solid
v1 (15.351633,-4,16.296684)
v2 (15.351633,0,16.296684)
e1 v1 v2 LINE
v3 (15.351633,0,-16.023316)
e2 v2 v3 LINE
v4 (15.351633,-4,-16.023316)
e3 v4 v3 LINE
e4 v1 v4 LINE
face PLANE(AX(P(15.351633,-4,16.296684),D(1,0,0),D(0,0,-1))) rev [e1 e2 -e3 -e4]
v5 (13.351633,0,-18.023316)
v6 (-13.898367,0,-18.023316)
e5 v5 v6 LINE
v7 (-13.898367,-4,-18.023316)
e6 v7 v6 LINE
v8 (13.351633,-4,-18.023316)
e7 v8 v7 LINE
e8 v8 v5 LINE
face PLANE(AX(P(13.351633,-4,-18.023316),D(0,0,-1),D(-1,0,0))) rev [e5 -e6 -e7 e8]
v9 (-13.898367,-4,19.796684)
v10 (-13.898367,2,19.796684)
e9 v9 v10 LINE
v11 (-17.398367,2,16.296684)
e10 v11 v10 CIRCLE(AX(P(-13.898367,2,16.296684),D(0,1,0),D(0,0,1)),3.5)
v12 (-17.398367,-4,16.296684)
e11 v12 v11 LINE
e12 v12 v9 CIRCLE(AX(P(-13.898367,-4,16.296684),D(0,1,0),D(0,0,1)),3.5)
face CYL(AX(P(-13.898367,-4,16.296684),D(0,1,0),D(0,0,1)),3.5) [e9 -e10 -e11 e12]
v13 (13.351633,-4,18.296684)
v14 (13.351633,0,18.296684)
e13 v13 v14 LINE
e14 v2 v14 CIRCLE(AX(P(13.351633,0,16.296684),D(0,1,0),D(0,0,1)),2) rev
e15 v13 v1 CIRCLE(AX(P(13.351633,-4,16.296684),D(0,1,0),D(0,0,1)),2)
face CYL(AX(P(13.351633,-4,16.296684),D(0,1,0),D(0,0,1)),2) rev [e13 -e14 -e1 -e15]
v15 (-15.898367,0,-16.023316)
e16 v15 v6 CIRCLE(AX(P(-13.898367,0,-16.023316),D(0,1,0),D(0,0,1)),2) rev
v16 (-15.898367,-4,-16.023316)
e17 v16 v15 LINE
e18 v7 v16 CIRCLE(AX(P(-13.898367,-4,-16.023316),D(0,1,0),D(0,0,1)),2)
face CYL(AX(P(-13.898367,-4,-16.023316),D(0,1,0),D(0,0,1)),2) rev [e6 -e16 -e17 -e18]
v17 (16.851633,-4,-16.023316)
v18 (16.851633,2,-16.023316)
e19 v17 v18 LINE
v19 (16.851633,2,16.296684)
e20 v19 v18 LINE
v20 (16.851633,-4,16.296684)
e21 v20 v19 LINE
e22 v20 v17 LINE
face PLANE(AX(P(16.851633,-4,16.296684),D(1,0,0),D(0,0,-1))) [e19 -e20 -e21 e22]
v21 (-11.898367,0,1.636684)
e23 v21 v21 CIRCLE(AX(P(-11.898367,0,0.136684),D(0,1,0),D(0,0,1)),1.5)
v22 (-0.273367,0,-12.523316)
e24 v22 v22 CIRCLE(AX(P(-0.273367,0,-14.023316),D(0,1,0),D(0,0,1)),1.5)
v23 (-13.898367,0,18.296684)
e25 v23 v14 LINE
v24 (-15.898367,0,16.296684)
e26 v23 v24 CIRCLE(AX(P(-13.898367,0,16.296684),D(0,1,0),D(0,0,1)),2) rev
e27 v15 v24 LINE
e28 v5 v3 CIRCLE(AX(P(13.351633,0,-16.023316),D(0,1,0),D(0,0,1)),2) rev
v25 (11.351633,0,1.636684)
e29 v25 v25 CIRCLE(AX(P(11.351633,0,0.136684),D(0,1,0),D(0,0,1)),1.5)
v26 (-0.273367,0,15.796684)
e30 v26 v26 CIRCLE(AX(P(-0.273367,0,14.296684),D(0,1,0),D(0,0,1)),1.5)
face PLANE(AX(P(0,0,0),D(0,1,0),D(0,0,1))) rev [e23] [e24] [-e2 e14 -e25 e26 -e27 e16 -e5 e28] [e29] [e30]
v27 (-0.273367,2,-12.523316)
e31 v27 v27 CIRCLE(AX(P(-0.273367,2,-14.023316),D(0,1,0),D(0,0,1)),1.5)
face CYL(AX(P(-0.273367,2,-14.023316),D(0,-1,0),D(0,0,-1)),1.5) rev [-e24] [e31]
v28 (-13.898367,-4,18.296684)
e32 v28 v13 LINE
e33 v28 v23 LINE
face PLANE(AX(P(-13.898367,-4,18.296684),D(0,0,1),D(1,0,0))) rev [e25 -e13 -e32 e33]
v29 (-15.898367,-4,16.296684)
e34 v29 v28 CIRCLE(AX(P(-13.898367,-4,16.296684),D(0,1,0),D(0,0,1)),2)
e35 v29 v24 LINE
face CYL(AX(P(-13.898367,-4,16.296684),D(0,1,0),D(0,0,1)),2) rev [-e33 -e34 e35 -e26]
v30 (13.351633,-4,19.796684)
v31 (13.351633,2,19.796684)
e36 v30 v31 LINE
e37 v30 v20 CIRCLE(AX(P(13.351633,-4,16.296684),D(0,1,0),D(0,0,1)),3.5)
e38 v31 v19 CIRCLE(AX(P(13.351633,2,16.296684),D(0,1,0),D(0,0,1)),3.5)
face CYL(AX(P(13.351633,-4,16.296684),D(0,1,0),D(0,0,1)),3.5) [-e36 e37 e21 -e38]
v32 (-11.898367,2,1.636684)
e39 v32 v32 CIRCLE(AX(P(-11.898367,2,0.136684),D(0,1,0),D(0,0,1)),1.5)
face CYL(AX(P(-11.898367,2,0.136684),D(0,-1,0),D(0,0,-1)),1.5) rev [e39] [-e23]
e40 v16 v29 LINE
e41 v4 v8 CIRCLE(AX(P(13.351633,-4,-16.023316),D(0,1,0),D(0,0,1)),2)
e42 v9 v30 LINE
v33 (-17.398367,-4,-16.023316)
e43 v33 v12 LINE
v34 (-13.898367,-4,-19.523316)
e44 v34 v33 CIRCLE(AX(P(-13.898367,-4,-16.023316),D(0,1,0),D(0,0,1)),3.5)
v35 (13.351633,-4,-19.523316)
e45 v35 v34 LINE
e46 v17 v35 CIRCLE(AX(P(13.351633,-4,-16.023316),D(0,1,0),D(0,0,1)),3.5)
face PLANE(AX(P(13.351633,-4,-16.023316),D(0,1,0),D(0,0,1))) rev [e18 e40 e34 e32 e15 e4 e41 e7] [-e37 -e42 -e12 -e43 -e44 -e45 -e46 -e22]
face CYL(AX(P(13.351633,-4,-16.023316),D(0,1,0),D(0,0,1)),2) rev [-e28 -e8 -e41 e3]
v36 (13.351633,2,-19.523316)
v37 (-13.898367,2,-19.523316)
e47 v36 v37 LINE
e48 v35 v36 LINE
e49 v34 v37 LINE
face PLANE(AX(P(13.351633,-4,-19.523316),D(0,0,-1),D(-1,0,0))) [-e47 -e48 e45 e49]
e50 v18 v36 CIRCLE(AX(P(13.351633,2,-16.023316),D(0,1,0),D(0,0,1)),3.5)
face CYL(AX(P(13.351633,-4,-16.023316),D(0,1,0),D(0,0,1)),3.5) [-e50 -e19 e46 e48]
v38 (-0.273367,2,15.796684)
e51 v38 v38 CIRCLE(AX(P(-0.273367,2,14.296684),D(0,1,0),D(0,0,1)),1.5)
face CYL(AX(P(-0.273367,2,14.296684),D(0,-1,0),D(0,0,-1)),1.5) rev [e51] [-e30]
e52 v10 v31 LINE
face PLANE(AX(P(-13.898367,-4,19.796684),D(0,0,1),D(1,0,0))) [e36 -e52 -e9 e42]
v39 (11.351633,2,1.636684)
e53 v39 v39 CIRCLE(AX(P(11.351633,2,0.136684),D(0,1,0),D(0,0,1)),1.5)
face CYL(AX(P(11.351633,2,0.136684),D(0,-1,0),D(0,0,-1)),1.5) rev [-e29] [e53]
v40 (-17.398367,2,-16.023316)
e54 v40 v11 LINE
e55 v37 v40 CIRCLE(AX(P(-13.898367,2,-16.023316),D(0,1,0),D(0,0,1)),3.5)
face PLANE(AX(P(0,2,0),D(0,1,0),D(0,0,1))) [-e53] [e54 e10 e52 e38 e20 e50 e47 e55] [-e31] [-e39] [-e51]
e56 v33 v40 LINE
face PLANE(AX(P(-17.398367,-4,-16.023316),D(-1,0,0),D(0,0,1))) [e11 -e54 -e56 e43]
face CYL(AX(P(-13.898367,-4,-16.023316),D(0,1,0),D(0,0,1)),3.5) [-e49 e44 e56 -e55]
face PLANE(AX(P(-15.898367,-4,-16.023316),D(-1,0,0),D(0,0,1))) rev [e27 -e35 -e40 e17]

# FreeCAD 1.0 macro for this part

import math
import FreeCAD as App
import Part
import Sketcher
Q = App.Units.Quantity


def edges_at(feature, points):
    """Names of the edges that pass closest to the given points."""
    edges = feature.Shape.Edges
    near = lambda p: min(range(len(edges)), key=lambda i: edges[i].distToShape(Part.Vertex(*p))[0])
    return sorted({f"Edge{near(p) + 1}" for p in points})

doc = App.newDocument("Part")
params = doc.addObject("Spreadsheet::Sheet", "Params")
for row, (alias, value) in enumerate([
    ("sketch1_diameter", "3 mm"),
    ("sketch1_width", "31.25 mm"),
    ("sketch1_height", "36.32 mm"),
    ("pad1_length", "2 mm"),
    ("fillet_radius", "2 mm"),
    ("sketch2_radius", "2 mm"),
    ("sketch2_radius2", "3.5 mm"),
    ("sketch2_width", "27.25 mm"),
    ("sketch2_height", "32.32 mm"),
    ("pad2_length", "6 mm"),
], start=1):
    params.set(f"A{row}", alias)
    params.set(f"B{row}", "=" + value)
    params.setAlias(f"B{row}", alias)

body = doc.addObject("PartDesign::Body", "Body")

# Sketch on XZ plane
sketch1 = body.newObject("Sketcher::SketchObject", "Sketch")
sketch1.AttachmentSupport = (doc.getObject("XZ_Plane"), [""])
sketch1.MapMode = "FlatFace"
sketch1.addGeometry(Part.LineSegment(App.Vector(-15.9, -18, 0), App.Vector(-15.9, 18.3, 0)), False)
sketch1.addGeometry(Part.LineSegment(App.Vector(-15.9, 18.3, 0), App.Vector(15.4, 18.3, 0)), False)
sketch1.addGeometry(Part.LineSegment(App.Vector(15.4, 18.3, 0), App.Vector(15.4, -18, 0)), False)
sketch1.addGeometry(Part.LineSegment(App.Vector(15.4, -18, 0), App.Vector(-15.9, -18, 0)), False)
sketch1.addGeometry(Part.Circle(App.Vector(-0.3, 14.3, 0), App.Vector(0, 0, 1), 1.5), False)
sketch1.addGeometry(Part.Circle(App.Vector(-11.9, 0.1, 0), App.Vector(0, 0, 1), 1.5), False)
sketch1.addGeometry(Part.Circle(App.Vector(11.4, 0.1, 0), App.Vector(0, 0, 1), 1.5), False)
sketch1.addGeometry(Part.Circle(App.Vector(-0.3, -14, 0), App.Vector(0, 0, 1), 1.5), False)
sketch1.addConstraint(Sketcher.Constraint("Coincident", 0, 2, 1, 1))
sketch1.addConstraint(Sketcher.Constraint("Coincident", 1, 2, 2, 1))
sketch1.addConstraint(Sketcher.Constraint("Coincident", 2, 2, 3, 1))
sketch1.addConstraint(Sketcher.Constraint("Coincident", 3, 2, 0, 1))
sketch1.addConstraint(Sketcher.Constraint("Vertical", 0))
sketch1.addConstraint(Sketcher.Constraint("Horizontal", 1))
sketch1.addConstraint(Sketcher.Constraint("Vertical", 2))
sketch1.addConstraint(Sketcher.Constraint("Horizontal", 3))
sketch1.addConstraint(Sketcher.Constraint("Equal", 4, 5))
sketch1.addConstraint(Sketcher.Constraint("Equal", 5, 6))
sketch1.addConstraint(Sketcher.Constraint("Equal", 6, 7))
sketch1.addConstraint(Sketcher.Constraint("Horizontal", 5, 3, 6, 3))
sketch1.addConstraint(Sketcher.Constraint("Vertical", 4, 3, 7, 3))
sketch1.addConstraint(Sketcher.Constraint("Diameter", 4, Q("3 mm")))
sketch1.addConstraint(Sketcher.Constraint("DistanceY", 4, 3, 0, 2, Q("4 mm")))
sketch1.addConstraint(Sketcher.Constraint("DistanceX", 0, 2, 5, 3, Q("4 mm")))
sketch1.addConstraint(Sketcher.Constraint("DistanceX", 6, 3, 1, 2, Q("4 mm")))
sketch1.addConstraint(Sketcher.Constraint("DistanceY", 2, 2, 7, 3, Q("4 mm")))
sketch1.addConstraint(Sketcher.Constraint("DistanceX", 1, 1, 1, 2, Q("31.25 mm")))
sketch1.addConstraint(Sketcher.Constraint("DistanceY", 0, 1, 0, 2, Q("36.32 mm")))
sketch1.addConstraint(Sketcher.Constraint("DistanceY", 5, 3, 4, 3, Q("14.16 mm")))
sketch1.addConstraint(Sketcher.Constraint("DistanceX", 5, 3, 4, 3, Q("11.625 mm")))
sketch1.addConstraint(Sketcher.Constraint("DistanceX", 4, 3, -1, 1, Q("0.273367 mm")))
sketch1.addConstraint(Sketcher.Constraint("DistanceY", -1, 1, 4, 3, Q("14.296684 mm")))
sketch1.setExpression("Constraints[13]", "Params.sketch1_diameter")
sketch1.setExpression("Constraints[18]", "Params.sketch1_width")
sketch1.setExpression("Constraints[19]", "Params.sketch1_height")
pad1 = body.newObject("PartDesign::Pad", "Pad")
pad1.Profile = sketch1
pad1.setExpression("Length", "Params.pad1_length")
pad1.Reversed = True
doc.recompute()

fillet = body.newObject("PartDesign::Fillet", "Fillet")
fillet.Base = (pad1, edges_at(pad1, [
    (15.352, 1, 18.297),
    (-15.898, 1, 18.297),
    (-15.898, 1, -18.023),
    (15.352, 1, -18.023),
]))
fillet.setExpression("Radius", "Params.fillet_radius")

# Sketch on XZ plane
sketch2 = body.newObject("Sketcher::SketchObject", "Sketch001")
sketch2.AttachmentSupport = (doc.getObject("XZ_Plane"), [""])
sketch2.MapMode = "FlatFace"
sketch2.AttachmentOffset = App.Placement(App.Vector(0, 0, -2), App.Rotation())
sketch2.addGeometry(Part.LineSegment(App.Vector(13.4, -19.5, 0), App.Vector(-13.9, -19.5, 0)), False)
sketch2.addGeometry(Part.ArcOfCircle(Part.Circle(App.Vector(-13.9, -16, 0), App.Vector(0, 0, 1), 3.5), math.radians(180), math.radians(270)), False)
sketch2.addGeometry(Part.LineSegment(App.Vector(-17.4, -16, 0), App.Vector(-17.4, 16.3, 0)), False)
sketch2.addGeometry(Part.ArcOfCircle(Part.Circle(App.Vector(-13.9, 16.3, 0), App.Vector(0, 0, 1), 3.5), math.radians(90), math.radians(180)), False)
sketch2.addGeometry(Part.LineSegment(App.Vector(-13.9, 19.8, 0), App.Vector(13.4, 19.8, 0)), False)
sketch2.addGeometry(Part.ArcOfCircle(Part.Circle(App.Vector(13.4, 16.3, 0), App.Vector(0, 0, 1), 3.5), math.radians(0), math.radians(90)), False)
sketch2.addGeometry(Part.LineSegment(App.Vector(16.9, 16.3, 0), App.Vector(16.9, -16, 0)), False)
sketch2.addGeometry(Part.ArcOfCircle(Part.Circle(App.Vector(13.4, -16, 0), App.Vector(0, 0, 1), 3.5), math.radians(-90), math.radians(0)), False)
sketch2.addGeometry(Part.LineSegment(App.Vector(-13.9, -18, 0), App.Vector(13.4, -18, 0)), False)
sketch2.addGeometry(Part.ArcOfCircle(Part.Circle(App.Vector(13.4, -16, 0), App.Vector(0, 0, 1), 2), math.radians(-90), math.radians(0)), False)
sketch2.addGeometry(Part.LineSegment(App.Vector(15.4, -16, 0), App.Vector(15.4, 16.3, 0)), False)
sketch2.addGeometry(Part.ArcOfCircle(Part.Circle(App.Vector(13.4, 16.3, 0), App.Vector(0, 0, 1), 2), math.radians(0), math.radians(90)), False)
sketch2.addGeometry(Part.LineSegment(App.Vector(13.4, 18.3, 0), App.Vector(-13.9, 18.3, 0)), False)
sketch2.addGeometry(Part.ArcOfCircle(Part.Circle(App.Vector(-13.9, 16.3, 0), App.Vector(0, 0, 1), 2), math.radians(90), math.radians(180)), False)
sketch2.addGeometry(Part.LineSegment(App.Vector(-15.9, 16.3, 0), App.Vector(-15.9, -16, 0)), False)
sketch2.addGeometry(Part.ArcOfCircle(Part.Circle(App.Vector(-13.9, -16, 0), App.Vector(0, 0, 1), 2), math.radians(180), math.radians(270)), False)
sketch2.addConstraint(Sketcher.Constraint("Tangent", 0, 2, 1, 2))
sketch2.addConstraint(Sketcher.Constraint("Tangent", 1, 1, 2, 1))
sketch2.addConstraint(Sketcher.Constraint("Tangent", 2, 2, 3, 2))
sketch2.addConstraint(Sketcher.Constraint("Tangent", 3, 1, 4, 1))
sketch2.addConstraint(Sketcher.Constraint("Tangent", 4, 2, 5, 2))
sketch2.addConstraint(Sketcher.Constraint("Tangent", 5, 1, 6, 1))
sketch2.addConstraint(Sketcher.Constraint("Tangent", 6, 2, 7, 2))
sketch2.addConstraint(Sketcher.Constraint("Tangent", 7, 1, 0, 1))
sketch2.addConstraint(Sketcher.Constraint("Tangent", 8, 2, 9, 1))
sketch2.addConstraint(Sketcher.Constraint("Tangent", 9, 2, 10, 1))
sketch2.addConstraint(Sketcher.Constraint("Tangent", 10, 2, 11, 1))
sketch2.addConstraint(Sketcher.Constraint("Tangent", 11, 2, 12, 1))
sketch2.addConstraint(Sketcher.Constraint("Tangent", 12, 2, 13, 1))
sketch2.addConstraint(Sketcher.Constraint("Tangent", 13, 2, 14, 1))
sketch2.addConstraint(Sketcher.Constraint("Tangent", 14, 2, 15, 1))
sketch2.addConstraint(Sketcher.Constraint("Tangent", 15, 2, 8, 1))
sketch2.addConstraint(Sketcher.Constraint("Horizontal", 0))
sketch2.addConstraint(Sketcher.Constraint("Vertical", 2))
sketch2.addConstraint(Sketcher.Constraint("Horizontal", 4))
sketch2.addConstraint(Sketcher.Constraint("Vertical", 6))
sketch2.addConstraint(Sketcher.Constraint("Horizontal", 8))
sketch2.addConstraint(Sketcher.Constraint("Vertical", 10))
sketch2.addConstraint(Sketcher.Constraint("Horizontal", 12))
sketch2.addConstraint(Sketcher.Constraint("Vertical", 14))
sketch2.addConstraint(Sketcher.Constraint("Coincident", 9, 3, 7, 3))
sketch2.addConstraint(Sketcher.Constraint("Coincident", 11, 3, 5, 3))
sketch2.addConstraint(Sketcher.Constraint("Coincident", 13, 3, 3, 3))
sketch2.addConstraint(Sketcher.Constraint("Equal", 1, 3))
sketch2.addConstraint(Sketcher.Constraint("Equal", 3, 5))
sketch2.addConstraint(Sketcher.Constraint("Equal", 5, 7))
sketch2.addConstraint(Sketcher.Constraint("Equal", 13, 15))
sketch2.addConstraint(Sketcher.Constraint("Radius", 9, Q("2 mm")))
sketch2.addConstraint(Sketcher.Constraint("Radius", 1, Q("3.5 mm")))
sketch2.addConstraint(Sketcher.Constraint("DistanceX", 0, 2, 0, 1, Q("27.25 mm")))
sketch2.addConstraint(Sketcher.Constraint("DistanceY", 2, 1, 2, 2, Q("32.32 mm")))
sketch2.addConstraint(Sketcher.Constraint("DistanceX", 1, 3, -1, 1, Q("13.898367 mm")))
sketch2.addConstraint(Sketcher.Constraint("DistanceY", 1, 3, -1, 1, Q("16.023316 mm")))
sketch2.setExpression("Constraints[31]", "Params.sketch2_radius")
sketch2.setExpression("Constraints[32]", "Params.sketch2_radius2")
sketch2.setExpression("Constraints[33]", "Params.sketch2_width")
sketch2.setExpression("Constraints[34]", "Params.sketch2_height")
pad2 = body.newObject("PartDesign::Pad", "Pad001")
pad2.Profile = sketch2
pad2.setExpression("Length", "Params.pad2_length")

doc.recompute()
